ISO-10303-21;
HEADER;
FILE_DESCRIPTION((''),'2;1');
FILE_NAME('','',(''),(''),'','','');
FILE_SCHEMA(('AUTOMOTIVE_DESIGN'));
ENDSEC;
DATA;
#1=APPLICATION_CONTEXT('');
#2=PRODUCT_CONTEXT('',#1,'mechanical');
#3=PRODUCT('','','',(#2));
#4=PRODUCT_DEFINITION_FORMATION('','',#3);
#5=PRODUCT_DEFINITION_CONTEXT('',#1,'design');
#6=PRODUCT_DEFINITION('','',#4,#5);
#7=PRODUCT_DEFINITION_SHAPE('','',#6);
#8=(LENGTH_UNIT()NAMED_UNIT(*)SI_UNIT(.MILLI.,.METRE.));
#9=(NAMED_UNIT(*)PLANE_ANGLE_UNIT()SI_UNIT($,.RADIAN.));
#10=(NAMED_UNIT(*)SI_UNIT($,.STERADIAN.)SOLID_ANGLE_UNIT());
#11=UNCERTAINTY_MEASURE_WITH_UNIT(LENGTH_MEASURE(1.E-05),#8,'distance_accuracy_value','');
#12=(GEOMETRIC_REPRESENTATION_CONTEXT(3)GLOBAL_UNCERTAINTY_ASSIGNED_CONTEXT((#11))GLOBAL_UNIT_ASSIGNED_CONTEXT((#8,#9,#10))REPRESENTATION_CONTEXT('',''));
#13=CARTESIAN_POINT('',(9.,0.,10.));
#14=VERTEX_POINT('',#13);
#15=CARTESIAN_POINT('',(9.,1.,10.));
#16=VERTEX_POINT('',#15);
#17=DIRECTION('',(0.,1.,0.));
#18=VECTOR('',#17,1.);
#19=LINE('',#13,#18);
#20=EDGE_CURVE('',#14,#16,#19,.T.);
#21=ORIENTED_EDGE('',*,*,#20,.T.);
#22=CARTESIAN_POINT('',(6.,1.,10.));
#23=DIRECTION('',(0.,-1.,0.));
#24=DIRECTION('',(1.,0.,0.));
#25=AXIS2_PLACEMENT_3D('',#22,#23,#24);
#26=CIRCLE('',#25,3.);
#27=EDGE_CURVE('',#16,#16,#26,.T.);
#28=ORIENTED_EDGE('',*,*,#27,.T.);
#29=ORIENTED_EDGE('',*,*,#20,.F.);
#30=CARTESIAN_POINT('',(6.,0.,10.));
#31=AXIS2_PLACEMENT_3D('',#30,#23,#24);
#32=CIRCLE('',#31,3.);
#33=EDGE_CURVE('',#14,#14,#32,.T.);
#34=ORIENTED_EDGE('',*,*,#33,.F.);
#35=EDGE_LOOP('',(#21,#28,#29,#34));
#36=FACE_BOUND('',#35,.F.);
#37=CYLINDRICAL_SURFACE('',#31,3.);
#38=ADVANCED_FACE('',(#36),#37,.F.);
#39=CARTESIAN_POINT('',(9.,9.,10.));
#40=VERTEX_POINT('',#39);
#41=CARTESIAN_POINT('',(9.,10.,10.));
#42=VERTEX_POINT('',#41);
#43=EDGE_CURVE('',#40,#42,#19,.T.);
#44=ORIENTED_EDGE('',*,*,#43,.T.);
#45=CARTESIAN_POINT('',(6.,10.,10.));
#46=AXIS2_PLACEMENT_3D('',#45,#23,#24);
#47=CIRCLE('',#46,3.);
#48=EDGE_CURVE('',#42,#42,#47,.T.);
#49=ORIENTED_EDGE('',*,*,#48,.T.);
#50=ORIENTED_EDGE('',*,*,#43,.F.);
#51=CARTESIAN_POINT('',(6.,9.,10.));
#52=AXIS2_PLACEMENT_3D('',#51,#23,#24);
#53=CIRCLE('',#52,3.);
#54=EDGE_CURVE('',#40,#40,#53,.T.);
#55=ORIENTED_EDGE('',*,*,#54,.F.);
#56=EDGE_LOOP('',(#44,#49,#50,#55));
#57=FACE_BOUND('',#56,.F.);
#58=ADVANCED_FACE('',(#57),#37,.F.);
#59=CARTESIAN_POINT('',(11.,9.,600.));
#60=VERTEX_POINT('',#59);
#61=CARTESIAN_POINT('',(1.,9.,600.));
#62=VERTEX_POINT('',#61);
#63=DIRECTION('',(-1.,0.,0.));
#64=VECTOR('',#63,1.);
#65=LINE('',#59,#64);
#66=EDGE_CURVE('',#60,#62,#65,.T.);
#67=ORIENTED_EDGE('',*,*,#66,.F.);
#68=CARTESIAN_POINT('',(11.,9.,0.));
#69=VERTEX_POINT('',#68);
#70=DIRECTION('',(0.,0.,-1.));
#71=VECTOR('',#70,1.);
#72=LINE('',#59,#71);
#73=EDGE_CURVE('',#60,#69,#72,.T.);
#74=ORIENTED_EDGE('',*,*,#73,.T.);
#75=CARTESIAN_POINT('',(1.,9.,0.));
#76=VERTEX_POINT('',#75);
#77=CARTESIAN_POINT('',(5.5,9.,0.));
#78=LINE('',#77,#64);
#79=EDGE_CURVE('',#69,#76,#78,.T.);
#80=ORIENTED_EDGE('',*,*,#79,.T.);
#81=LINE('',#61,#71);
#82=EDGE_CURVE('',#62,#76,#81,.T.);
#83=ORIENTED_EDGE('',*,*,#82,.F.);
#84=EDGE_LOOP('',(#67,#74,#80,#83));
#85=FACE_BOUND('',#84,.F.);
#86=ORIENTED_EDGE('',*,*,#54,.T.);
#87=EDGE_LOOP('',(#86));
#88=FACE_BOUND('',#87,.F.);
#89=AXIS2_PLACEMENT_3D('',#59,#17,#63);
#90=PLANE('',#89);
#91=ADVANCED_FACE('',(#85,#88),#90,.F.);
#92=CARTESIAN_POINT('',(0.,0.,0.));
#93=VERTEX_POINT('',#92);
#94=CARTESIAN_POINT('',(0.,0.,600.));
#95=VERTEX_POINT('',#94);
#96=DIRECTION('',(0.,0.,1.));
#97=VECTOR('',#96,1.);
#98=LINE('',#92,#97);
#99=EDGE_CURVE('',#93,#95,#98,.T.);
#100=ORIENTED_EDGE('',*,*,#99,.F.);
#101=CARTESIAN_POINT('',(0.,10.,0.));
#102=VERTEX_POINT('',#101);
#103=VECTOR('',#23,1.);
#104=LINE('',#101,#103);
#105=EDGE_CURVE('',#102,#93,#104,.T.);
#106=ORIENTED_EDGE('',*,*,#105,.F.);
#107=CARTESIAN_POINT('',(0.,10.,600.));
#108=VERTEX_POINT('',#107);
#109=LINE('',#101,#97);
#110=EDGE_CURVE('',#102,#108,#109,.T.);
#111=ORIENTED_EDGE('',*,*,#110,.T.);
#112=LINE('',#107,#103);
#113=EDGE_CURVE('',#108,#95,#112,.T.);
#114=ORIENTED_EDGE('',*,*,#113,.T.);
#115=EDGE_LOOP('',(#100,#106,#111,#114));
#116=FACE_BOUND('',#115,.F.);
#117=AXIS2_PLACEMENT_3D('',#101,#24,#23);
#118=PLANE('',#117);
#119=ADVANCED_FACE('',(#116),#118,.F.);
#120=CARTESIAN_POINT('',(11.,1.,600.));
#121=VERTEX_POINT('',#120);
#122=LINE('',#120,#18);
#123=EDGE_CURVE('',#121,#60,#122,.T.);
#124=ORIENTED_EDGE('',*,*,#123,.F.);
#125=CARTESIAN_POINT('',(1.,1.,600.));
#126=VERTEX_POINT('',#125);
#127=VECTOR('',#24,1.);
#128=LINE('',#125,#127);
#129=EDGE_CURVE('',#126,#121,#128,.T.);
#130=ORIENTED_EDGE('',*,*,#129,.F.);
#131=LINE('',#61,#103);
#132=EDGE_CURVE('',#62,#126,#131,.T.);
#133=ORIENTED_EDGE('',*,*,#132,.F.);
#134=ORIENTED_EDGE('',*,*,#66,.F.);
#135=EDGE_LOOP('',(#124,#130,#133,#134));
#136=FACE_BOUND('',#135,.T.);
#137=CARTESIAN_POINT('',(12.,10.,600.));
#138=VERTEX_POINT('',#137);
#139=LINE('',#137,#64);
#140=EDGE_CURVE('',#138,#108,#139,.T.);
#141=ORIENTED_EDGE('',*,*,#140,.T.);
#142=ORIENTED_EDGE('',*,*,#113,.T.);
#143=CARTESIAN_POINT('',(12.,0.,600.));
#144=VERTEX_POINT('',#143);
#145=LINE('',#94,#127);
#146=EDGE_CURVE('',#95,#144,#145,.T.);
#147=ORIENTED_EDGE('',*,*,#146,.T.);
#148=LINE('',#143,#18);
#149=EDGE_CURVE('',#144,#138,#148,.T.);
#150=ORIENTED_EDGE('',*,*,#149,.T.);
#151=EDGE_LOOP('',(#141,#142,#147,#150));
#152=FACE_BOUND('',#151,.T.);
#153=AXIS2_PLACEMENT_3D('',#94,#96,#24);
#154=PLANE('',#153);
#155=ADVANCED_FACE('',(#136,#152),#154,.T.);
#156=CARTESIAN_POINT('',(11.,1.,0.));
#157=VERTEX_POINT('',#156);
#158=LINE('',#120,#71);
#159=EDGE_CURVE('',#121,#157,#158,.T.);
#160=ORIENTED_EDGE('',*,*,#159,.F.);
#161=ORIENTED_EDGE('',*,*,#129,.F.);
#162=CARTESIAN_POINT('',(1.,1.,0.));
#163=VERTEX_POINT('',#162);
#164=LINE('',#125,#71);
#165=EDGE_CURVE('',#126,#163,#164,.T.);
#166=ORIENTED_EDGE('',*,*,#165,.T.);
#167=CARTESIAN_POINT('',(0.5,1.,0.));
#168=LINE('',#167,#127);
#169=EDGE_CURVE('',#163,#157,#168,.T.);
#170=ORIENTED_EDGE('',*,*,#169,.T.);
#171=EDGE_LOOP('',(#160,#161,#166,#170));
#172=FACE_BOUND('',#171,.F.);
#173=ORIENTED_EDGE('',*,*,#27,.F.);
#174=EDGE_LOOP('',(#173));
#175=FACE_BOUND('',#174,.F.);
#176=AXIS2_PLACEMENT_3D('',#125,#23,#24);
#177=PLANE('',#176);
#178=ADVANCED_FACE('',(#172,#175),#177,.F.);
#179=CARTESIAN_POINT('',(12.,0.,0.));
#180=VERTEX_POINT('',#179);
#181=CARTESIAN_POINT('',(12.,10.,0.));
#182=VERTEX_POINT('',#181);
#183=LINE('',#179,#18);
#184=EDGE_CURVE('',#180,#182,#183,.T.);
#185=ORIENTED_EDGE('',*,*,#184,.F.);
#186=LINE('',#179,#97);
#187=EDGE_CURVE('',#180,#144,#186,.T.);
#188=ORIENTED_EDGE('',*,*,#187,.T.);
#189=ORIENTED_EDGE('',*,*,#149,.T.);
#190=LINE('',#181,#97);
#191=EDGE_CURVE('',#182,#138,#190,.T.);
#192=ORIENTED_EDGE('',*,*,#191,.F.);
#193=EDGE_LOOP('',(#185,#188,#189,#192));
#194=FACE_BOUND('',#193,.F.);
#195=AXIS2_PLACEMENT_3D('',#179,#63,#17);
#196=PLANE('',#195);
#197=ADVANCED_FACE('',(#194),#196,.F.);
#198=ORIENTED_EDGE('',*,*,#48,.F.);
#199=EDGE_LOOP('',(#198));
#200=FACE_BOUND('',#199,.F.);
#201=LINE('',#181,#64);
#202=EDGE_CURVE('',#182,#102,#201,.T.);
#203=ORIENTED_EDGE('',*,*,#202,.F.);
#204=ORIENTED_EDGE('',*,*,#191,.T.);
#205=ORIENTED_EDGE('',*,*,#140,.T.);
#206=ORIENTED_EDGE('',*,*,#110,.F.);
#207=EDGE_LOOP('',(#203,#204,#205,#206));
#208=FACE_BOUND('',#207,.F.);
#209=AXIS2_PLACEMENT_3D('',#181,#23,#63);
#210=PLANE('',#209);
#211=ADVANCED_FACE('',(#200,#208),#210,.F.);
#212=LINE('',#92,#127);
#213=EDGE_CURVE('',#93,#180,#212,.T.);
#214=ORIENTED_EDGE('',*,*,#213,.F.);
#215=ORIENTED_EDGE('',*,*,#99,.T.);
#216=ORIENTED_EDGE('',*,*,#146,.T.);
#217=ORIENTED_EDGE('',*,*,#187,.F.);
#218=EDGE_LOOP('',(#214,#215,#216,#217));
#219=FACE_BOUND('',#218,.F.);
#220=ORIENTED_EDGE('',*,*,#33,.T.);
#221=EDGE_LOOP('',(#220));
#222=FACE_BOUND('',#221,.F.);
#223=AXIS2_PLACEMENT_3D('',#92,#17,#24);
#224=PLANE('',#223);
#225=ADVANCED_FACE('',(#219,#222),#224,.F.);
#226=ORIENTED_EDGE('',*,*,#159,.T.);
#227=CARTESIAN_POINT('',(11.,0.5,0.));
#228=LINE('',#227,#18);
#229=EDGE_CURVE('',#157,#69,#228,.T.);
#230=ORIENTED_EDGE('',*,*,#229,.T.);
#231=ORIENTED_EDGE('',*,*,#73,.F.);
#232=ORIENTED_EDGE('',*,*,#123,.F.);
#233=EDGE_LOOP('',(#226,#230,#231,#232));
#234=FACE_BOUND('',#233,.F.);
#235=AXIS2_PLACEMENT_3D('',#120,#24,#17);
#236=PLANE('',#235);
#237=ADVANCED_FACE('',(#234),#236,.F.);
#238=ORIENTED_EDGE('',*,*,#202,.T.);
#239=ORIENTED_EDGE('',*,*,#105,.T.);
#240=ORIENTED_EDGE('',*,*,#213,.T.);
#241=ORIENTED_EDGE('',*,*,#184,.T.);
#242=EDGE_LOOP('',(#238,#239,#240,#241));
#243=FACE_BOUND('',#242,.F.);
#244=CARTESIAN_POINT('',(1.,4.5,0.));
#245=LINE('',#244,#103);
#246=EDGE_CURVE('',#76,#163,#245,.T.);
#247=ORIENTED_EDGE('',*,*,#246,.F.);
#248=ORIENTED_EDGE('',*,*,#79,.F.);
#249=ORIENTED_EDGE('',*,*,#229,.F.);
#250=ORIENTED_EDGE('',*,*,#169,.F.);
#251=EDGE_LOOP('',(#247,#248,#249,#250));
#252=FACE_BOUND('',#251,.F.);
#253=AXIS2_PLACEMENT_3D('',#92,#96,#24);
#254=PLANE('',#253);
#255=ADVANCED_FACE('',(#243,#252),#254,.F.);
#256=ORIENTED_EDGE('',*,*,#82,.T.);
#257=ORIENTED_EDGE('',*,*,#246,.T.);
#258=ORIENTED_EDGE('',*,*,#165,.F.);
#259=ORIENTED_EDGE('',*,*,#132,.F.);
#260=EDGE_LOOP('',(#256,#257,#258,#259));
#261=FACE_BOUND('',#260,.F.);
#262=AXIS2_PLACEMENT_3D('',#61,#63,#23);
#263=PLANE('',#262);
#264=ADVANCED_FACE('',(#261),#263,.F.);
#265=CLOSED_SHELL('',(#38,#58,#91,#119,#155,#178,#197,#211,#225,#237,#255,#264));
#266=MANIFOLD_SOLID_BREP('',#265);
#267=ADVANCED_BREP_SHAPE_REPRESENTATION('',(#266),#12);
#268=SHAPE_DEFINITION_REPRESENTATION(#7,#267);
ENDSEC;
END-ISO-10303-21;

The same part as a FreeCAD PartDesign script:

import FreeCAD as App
import Part
import Sketcher


def add_polygon(sketch, points):
    """Adds a closed chain of lines whose ends are joined by coincident constraints."""
    first, n = sketch.GeometryCount, len(points)
    for a, b in zip(points, points[1:] + points[:1]):
        sketch.addGeometry(Part.LineSegment(App.Vector(*a, 0), App.Vector(*b, 0)), False)
    for i in range(n):
        sketch.addConstraint(Sketcher.Constraint("Coincident", first + i, 2, first + (i + 1) % n, 1))

doc = App.newDocument("Part")
body = doc.addObject("PartDesign::Body", "Body")

# Sketch on XY plane
sketch1 = body.newObject("Sketcher::SketchObject", "Sketch")
sketch1.AttachmentSupport = (doc.getObject("XY_Plane"), [""])
sketch1.MapMode = "FlatFace"
add_polygon(sketch1, [(0, 10), (0, 0), (12, 0), (12, 10)])  # lines 0-3
sketch1.addConstraint(Sketcher.Constraint("Vertical", 0))
sketch1.addConstraint(Sketcher.Constraint("Horizontal", 1))
sketch1.addConstraint(Sketcher.Constraint("Vertical", 2))
sketch1.addConstraint(Sketcher.Constraint("Horizontal", 3))
sketch1.addConstraint(Sketcher.Constraint("Coincident", 0, 2, -1, 1))
sketch1.addConstraint(Sketcher.Constraint("DistanceX", 1, 1, 1, 2, 12.0))
sketch1.addConstraint(Sketcher.Constraint("DistanceY", 0, 2, 0, 1, 10.0))
pad1 = body.newObject("PartDesign::Pad", "Pad")
pad1.Profile = sketch1
pad1.Length = 600

# Sketch on XY plane
sketch2 = body.newObject("Sketcher::SketchObject", "Sketch001")
sketch2.AttachmentSupport = (doc.getObject("XY_Plane"), [""])
sketch2.MapMode = "FlatFace"
sketch2.AttachmentOffset = App.Placement(App.Vector(0, 0, 600), App.Rotation())
add_polygon(sketch2, [(1, 9), (1, 1), (11, 1), (11, 9)])  # lines 0-3
sketch2.addConstraint(Sketcher.Constraint("Vertical", 0))
sketch2.addConstraint(Sketcher.Constraint("Horizontal", 1))
sketch2.addConstraint(Sketcher.Constraint("Vertical", 2))
sketch2.addConstraint(Sketcher.Constraint("Horizontal", 3))
sketch2.addConstraint(Sketcher.Constraint("DistanceX", 1, 1, 1, 2, 10.0))
sketch2.addConstraint(Sketcher.Constraint("DistanceY", 0, 2, 0, 1, 8.0))
sketch2.addConstraint(Sketcher.Constraint("DistanceX", -1, 1, 0, 2, 1.0))
sketch2.addConstraint(Sketcher.Constraint("DistanceY", -1, 1, 0, 2, 1.0))
pocket1 = body.newObject("PartDesign::Pocket", "Pocket")
pocket1.Profile = sketch2
pocket1.Type = "ThroughAll"

# Sketch on XZ plane
sketch3 = body.newObject("Sketcher::SketchObject", "Sketch002")
sketch3.AttachmentSupport = (doc.getObject("XZ_Plane"), [""])
sketch3.MapMode = "FlatFace"
sketch3.addGeometry(Part.Circle(App.Vector(6, 10, 0), App.Vector(0, 0, 1), 3), False)
sketch3.addConstraint(Sketcher.Constraint("Diameter", 0, 6.0))
sketch3.addConstraint(Sketcher.Constraint("DistanceX", -1, 1, 0, 3, 6.0))
sketch3.addConstraint(Sketcher.Constraint("DistanceY", -1, 1, 0, 3, 10.0))
pocket2 = body.newObject("PartDesign::Pocket", "Pocket001")
pocket2.Profile = sketch3
pocket2.Type = "ThroughAll"

doc.recompute()
